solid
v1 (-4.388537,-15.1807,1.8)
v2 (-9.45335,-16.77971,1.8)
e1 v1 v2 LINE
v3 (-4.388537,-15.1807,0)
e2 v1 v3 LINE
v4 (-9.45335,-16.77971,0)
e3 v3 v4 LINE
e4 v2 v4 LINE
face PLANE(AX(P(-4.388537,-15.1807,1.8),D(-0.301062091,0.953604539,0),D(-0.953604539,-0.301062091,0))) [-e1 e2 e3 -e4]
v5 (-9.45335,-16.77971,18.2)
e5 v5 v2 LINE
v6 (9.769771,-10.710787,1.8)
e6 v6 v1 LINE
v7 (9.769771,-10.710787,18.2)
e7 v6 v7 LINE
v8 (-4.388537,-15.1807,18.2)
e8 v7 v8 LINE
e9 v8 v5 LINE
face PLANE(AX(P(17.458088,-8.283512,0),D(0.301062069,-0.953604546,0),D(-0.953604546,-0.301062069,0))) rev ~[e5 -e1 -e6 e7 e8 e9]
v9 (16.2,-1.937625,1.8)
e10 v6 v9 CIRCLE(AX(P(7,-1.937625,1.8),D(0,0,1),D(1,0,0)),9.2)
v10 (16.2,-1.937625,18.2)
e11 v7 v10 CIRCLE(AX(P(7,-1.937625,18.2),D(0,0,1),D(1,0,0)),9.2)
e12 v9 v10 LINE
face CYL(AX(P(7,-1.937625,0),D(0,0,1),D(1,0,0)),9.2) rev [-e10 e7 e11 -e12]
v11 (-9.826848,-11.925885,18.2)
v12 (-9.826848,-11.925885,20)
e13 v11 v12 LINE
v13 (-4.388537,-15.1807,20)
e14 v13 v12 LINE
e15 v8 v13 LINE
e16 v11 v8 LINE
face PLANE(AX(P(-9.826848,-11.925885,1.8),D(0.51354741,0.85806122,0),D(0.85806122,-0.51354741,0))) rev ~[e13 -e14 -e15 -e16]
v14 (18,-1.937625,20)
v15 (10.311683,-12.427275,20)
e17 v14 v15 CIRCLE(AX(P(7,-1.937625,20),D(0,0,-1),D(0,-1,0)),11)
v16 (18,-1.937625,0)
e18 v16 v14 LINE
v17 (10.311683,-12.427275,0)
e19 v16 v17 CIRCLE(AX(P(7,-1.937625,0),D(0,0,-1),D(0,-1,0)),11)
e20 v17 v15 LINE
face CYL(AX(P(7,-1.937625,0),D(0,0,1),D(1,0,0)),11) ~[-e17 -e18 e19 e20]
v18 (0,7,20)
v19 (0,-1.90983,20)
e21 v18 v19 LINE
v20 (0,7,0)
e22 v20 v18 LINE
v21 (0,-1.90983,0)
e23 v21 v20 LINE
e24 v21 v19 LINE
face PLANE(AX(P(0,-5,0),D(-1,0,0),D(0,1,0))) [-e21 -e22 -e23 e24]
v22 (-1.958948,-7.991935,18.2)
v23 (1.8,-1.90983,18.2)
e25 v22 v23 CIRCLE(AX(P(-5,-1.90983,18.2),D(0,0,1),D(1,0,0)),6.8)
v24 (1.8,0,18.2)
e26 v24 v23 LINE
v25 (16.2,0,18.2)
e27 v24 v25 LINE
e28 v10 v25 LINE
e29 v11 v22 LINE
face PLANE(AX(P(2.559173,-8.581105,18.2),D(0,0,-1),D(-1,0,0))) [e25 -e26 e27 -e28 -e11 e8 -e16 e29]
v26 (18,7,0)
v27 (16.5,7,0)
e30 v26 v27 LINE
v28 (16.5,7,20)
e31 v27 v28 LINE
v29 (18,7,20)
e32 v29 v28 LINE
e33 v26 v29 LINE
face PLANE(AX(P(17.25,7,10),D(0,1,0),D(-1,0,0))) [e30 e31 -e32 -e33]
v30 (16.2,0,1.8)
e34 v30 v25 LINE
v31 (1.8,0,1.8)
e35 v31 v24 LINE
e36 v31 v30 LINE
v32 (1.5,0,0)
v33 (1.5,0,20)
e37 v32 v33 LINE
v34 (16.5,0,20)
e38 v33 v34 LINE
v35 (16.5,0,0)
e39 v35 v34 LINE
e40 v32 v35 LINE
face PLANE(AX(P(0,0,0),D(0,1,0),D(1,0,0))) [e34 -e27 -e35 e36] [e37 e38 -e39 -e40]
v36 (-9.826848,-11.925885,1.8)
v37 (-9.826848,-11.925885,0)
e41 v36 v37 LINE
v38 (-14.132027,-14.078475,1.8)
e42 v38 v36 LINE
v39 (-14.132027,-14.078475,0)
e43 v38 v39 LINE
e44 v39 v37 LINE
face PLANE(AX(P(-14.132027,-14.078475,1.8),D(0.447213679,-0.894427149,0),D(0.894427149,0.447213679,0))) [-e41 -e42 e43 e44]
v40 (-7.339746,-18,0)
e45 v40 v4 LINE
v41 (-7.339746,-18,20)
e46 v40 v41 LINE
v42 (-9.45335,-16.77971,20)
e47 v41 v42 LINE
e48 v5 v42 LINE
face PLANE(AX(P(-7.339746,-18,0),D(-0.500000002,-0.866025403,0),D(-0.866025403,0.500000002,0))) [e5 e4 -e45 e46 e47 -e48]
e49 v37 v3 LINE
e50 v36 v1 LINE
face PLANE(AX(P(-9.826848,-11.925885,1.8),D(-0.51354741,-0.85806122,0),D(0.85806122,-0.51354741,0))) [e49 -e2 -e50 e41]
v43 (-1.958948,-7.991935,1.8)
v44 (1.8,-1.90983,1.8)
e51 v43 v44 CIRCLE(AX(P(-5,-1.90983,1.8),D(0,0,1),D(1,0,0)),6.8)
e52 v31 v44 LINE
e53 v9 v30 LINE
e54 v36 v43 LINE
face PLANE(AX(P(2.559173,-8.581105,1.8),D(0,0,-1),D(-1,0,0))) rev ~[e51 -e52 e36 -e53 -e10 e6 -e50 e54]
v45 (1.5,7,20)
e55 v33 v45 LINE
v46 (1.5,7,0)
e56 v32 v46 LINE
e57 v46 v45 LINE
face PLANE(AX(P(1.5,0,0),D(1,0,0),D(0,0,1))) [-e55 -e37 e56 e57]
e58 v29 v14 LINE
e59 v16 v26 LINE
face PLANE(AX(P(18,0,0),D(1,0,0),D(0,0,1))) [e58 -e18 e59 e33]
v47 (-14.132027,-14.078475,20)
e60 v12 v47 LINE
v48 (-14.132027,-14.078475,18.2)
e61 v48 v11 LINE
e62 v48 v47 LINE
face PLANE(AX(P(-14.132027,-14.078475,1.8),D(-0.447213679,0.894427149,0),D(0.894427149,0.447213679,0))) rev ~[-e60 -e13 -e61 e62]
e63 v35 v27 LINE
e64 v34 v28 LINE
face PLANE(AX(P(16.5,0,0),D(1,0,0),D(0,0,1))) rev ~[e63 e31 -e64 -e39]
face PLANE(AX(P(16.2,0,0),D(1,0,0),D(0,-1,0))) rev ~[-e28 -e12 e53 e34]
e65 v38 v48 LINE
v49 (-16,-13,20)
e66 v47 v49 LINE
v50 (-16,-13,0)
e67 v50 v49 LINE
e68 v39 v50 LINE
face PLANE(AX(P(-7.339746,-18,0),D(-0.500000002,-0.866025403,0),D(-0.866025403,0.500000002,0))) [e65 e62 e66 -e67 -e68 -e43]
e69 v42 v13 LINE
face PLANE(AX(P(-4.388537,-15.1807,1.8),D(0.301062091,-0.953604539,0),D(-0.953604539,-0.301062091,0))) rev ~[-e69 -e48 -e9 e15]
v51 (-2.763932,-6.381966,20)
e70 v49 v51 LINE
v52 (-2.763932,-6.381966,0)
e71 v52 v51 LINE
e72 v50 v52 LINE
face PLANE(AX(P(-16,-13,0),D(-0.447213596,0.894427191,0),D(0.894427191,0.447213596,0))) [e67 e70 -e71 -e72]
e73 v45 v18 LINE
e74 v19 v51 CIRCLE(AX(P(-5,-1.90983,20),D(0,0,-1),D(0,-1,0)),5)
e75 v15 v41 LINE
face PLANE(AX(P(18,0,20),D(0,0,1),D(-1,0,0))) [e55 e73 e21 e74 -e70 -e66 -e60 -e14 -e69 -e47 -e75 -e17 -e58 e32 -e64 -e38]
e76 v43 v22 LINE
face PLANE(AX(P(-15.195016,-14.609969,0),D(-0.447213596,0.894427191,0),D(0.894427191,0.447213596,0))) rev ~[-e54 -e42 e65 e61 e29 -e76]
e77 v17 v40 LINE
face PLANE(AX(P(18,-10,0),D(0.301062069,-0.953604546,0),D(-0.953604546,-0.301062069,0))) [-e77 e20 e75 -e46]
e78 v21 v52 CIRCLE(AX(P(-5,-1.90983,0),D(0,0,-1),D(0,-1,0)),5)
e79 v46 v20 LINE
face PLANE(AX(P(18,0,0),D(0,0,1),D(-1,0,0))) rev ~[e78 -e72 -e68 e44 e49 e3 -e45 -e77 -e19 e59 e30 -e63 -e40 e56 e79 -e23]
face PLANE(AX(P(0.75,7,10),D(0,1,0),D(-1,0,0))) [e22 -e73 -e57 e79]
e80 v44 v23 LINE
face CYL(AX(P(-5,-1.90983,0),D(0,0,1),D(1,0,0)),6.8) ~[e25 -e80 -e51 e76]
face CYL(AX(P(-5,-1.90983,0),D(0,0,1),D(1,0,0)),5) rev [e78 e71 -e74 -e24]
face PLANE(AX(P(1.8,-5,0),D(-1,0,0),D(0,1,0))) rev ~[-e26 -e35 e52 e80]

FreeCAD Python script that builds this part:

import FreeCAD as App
import Part
import Sketcher

V = App.Vector
Q = App.Units.Quantity


def edges_at(feature, points):
    """Names of the edges that pass closest to the given points."""
    edges = feature.Shape.Edges
    near = lambda p: min(range(len(edges)), key=lambda i: edges[i].distToShape(Part.Vertex(*p))[0])
    return sorted({f"Edge{near(p) + 1}" for p in points})


def faces_at(feature, points):
    """Names of the faces that lie closest to the given points."""
    faces = feature.Shape.Faces
    near = lambda p: min(range(len(faces)), key=lambda i: faces[i].distToShape(Part.Vertex(*p))[0])
    return sorted({f"Face{near(p) + 1}" for p in points})


def add_polygon(sketch, points):
    """Adds a closed chain of lines whose ends are joined by coincident constraints."""
    first, n = sketch.GeometryCount, len(points)
    for a, b in zip(points, points[1:] + points[:1]):
        sketch.addGeometry(Part.LineSegment(App.Vector(*a, 0), App.Vector(*b, 0)), False)
    for i in range(n):
        sketch.addConstraint(Sketcher.Constraint("Coincident", first + i, 2, first + (i + 1) % n, 1))

doc = App.newDocument("Part")
body = doc.addObject("PartDesign::Body", "Body")

sketch1 = body.newObject("Sketcher::SketchObject", "Sketch")
sketch1.AttachmentSupport = (doc.getObject("XY_Plane"), [""])
sketch1.MapMode = "FlatFace"
add_polygon(sketch1, [(18, 0), (0, 0), (0, -5), (-16, -13), (-7.339746, -18), (18, -10)])
sketch1.addConstraint([
    Sketcher.Constraint("Horizontal", 0),
    Sketcher.Constraint("Vertical", 1),
    Sketcher.Constraint("Vertical", 5),
    Sketcher.Constraint("Coincident", 0, 2, -1, 1),
    Sketcher.Constraint("DistanceX", 0, 2, 0, 1, 18.0),
    Sketcher.Constraint("DistanceY", 1, 2, 1, 1, 5.0),
    Sketcher.Constraint("DistanceY", 5, 1, 5, 2, 10.0),
    Sketcher.Constraint("Angle", 3, Q("-30 deg")),
    Sketcher.Constraint("Distance", 3, 10.0),
    Sketcher.Constraint("DistanceX", 2, 2, -1, 1, 16.0),
    Sketcher.Constraint("DistanceY", 2, 2, -1, 1, 13.0),
])
pad1 = body.newObject("PartDesign::Pad", "Pad")
pad1.Profile = sketch1
pad1.Length = 20
doc.recompute()

fillet = body.newObject("PartDesign::Fillet", "Fillet")
fillet.Base = (pad1, edges_at(pad1, [(18, -10, 10)]))
fillet.Radius = 11
doc.recompute()

fillet2 = body.newObject("PartDesign::Fillet", "Fillet001")
fillet2.Base = (fillet, edges_at(fillet, [(0, -5, 10)]))
fillet2.Radius = 5
doc.recompute()

thickness = body.newObject("PartDesign::Thickness", "Thickness")
thickness.Base = (fillet2, faces_at(fillet2, [(9, 0, 10), (-11.67, -15.5, 10)]))
thickness.Value = 1.8
thickness.Reversed = True
thickness.Join = "Arc"

sketch2 = body.newObject("Sketcher::SketchObject", "Sketch001")
sketch2.AttachmentSupport = (doc.getObject("XZ_Plane"), [""])
sketch2.MapMode = "FlatFace"
add_polygon(sketch2, [(18, 20), (18, 0), (16.5, 0), (16.5, 20)])
add_polygon(sketch2, [(1.5, 20), (1.5, 0), (0, 0), (0, 20)])
sketch2.addConstraint([
    Sketcher.Constraint("Vertical", 0),
    Sketcher.Constraint("Horizontal", 1),
    Sketcher.Constraint("Vertical", 2),
    Sketcher.Constraint("Horizontal", 3),
    Sketcher.Constraint("Vertical", 4),
    Sketcher.Constraint("Horizontal", 5),
    Sketcher.Constraint("Vertical", 6),
    Sketcher.Constraint("Horizontal", 7),
    Sketcher.Constraint("Coincident", 5, 2, -1, 1),
    Sketcher.Constraint("PointOnObject", 0, 2, -1),
    Sketcher.Constraint("Horizontal", 3, 2, 6, 2),
    Sketcher.Constraint("Equal", 3, 5),
    Sketcher.Constraint("DistanceY", 0, 2, 0, 1, 20.0),
    Sketcher.Constraint("DistanceX", 1, 2, 1, 1, 1.5),
    Sketcher.Constraint("DistanceX", -1, 1, 0, 2, 18.0),
])
pad2 = body.newObject("PartDesign::Pad", "Pad001")
pad2.Profile = sketch2
pad2.Length = 7
pad2.Reversed = True

sketch3 = body.newObject("Sketcher::SketchObject", "Sketch002")
sketch3.AttachmentSupport = (doc.getObject("XY_Plane"), [""])
sketch3.MapMode = "FlatFace"
sketch3.AttachmentOffset = App.Placement(V(0, 0, 1.8), App.Rotation())
add_polygon(sketch3, [(-9.826848, -11.925885), (-14.132027, -14.078475), (-9.45335, -16.77971), (-4.388537, -15.1807)])
sketch3.addConstraint([
    Sketcher.Constraint("Angle", 1, Q("-29.999996 deg")),
    Sketcher.Constraint("DistanceY", 2, 2, -1, 1, 15.1807),
    Sketcher.Constraint("Distance", 1, 5.402471),
    Sketcher.Constraint("Distance", 2, 5.31123),
    Sketcher.Constraint("DistanceX", 1, 2, -1, 1, 9.45335),
    Sketcher.Constraint("DistanceY", 1, 2, -1, 1, 16.77971),
    Sketcher.Constraint("DistanceX", 0, 2, 3, 2, 4.305179),
    Sketcher.Constraint("DistanceY", 0, 2, 3, 2, 2.15259),
])
pocket1 = body.newObject("PartDesign::Pocket", "Pocket")
pocket1.Profile = sketch3
pocket1.Type = "ThroughAll"
pocket1.Midplane = True

doc.recompute()
